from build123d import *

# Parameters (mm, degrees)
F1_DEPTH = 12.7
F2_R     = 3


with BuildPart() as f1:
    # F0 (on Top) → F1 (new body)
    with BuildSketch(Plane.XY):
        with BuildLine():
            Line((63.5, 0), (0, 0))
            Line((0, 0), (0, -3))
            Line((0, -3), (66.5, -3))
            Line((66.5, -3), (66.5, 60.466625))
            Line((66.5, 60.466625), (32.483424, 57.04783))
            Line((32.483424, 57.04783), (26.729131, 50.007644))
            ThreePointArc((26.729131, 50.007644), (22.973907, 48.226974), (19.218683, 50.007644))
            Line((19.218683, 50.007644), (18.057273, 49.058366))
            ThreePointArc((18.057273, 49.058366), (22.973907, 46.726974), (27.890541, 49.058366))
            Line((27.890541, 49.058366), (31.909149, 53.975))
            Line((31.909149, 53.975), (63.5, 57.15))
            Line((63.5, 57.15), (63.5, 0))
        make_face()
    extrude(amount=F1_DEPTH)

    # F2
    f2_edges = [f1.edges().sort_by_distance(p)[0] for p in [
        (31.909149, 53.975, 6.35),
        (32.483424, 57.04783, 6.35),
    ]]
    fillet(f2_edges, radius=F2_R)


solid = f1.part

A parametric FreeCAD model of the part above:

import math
import FreeCAD as App
import Part
import Sketcher
from FreeCAD import Vector
Q = App.Units.Quantity


def edges_at(feature, points):
    """Names of the edges that pass closest to the given points."""
    edges = feature.Shape.Edges
    near = lambda p: min(range(len(edges)), key=lambda i: edges[i].distToShape(Part.Vertex(*p))[0])
    return sorted({f"Edge{near(p) + 1}" for p in points})

doc = App.newDocument("Part")
params = doc.addObject("Spreadsheet::Sheet", "Params")
for row, (alias, value) in enumerate([
    ("sketch1_radius", "0.25 in"),
    ("sketch1_width", "2.5 in"),
    ("sketch1_height", "2.25 in"),
    ("sketch1_length", "0.25 in"),
    ("sketch1_length2", "1.25 in"),
    ("pad1_length", "0.5 in"),
    ("fillet_radius", "3 mm"),
], start=1):
    params.set(f"A{row}", alias)
    params.set(f"B{row}", "=" + value)
    params.setAlias(f"B{row}", alias)

body = doc.addObject("PartDesign::Body", "Body")

sketch1 = body.newObject("Sketcher::SketchObject", "Sketch")
sketch1.AttachmentSupport = (doc.getObject("XY_Plane"), [""])
sketch1.MapMode = "FlatFace"
sketch1.addGeometry([
    Part.LineSegment(Vector(63.5, 0, 0), Vector(0, 0, 0)),
    Part.LineSegment(Vector(0, 0, 0), Vector(0, -3, 0)),
    Part.LineSegment(Vector(0, -3, 0), Vector(66.5, -3, 0)),
    Part.LineSegment(Vector(66.5, -3, 0), Vector(66.5, 60.5, 0)),
    Part.LineSegment(Vector(66.5, 60.5, 0), Vector(32.5, 57, 0)),
    Part.LineSegment(Vector(32.5, 57, 0), Vector(26.7, 50, 0)),
    Part.ArcOfCircle(Part.Circle(Vector(23, 53.1, 0), Vector(0, 0, 1), 4.8), math.radians(-141), math.radians(-39)),
    Part.LineSegment(Vector(19.2, 50, 0), Vector(18.1, 49.1, 0)),
    Part.ArcOfCircle(Part.Circle(Vector(23, 53.1, 0), Vector(0, 0, 1), 6.4), math.radians(-141), math.radians(-39)),
    Part.LineSegment(Vector(27.9, 49.1, 0), Vector(31.9, 54, 0)),
    Part.LineSegment(Vector(31.9, 54, 0), Vector(63.5, 57.1, 0)),
    Part.LineSegment(Vector(63.5, 57.1, 0), Vector(63.5, 0, 0)),
], False)
sketch1.addConstraint([
    Sketcher.Constraint("Coincident", 0, 2, 1, 1),
    Sketcher.Constraint("Coincident", 1, 2, 2, 1),
    Sketcher.Constraint("Coincident", 2, 2, 3, 1),
    Sketcher.Constraint("Coincident", 3, 2, 4, 1),
    Sketcher.Constraint("Coincident", 4, 2, 5, 1),
    Sketcher.Constraint("Tangent", 5, 2, 6, 2),
    Sketcher.Constraint("Coincident", 6, 1, 7, 1),
    Sketcher.Constraint("Coincident", 7, 2, 8, 1),
    Sketcher.Constraint("Tangent", 8, 2, 9, 1),
    Sketcher.Constraint("Coincident", 9, 2, 10, 1),
    Sketcher.Constraint("Coincident", 10, 2, 11, 1),
    Sketcher.Constraint("Coincident", 11, 2, 0, 1),
    Sketcher.Constraint("Horizontal", 0),
    Sketcher.Constraint("Vertical", 1),
    Sketcher.Constraint("Horizontal", 2),
    Sketcher.Constraint("Vertical", 3),
    Sketcher.Constraint("Vertical", 11),
    Sketcher.Constraint("Coincident", 0, 2, -1, 1),
    Sketcher.Constraint("Coincident", 8, 3, 6, 3),
    Sketcher.Constraint("Parallel", 5, 9),
    Sketcher.Constraint("Parallel", 4, 10),
    Sketcher.Constraint("Horizontal", 5, 2, 6, 1),
    Sketcher.Constraint("Horizontal", 7, 2, 8, 2),
    Sketcher.Constraint("Radius", 8, Q("0.25 in")),
    Sketcher.Constraint("DistanceX", 0, 2, 0, 1, Q("2.5 in")),
    Sketcher.Constraint("DistanceY", 11, 2, 11, 1, Q("2.25 in")),
    Sketcher.Constraint("Distance", 9, Q("0.25 in")),
    Sketcher.Constraint("Distance", 10, Q("1.25 in")),
    Sketcher.Constraint("Radius", 6, Q("4.849998 mm")),
    Sketcher.Constraint("DistanceY", -1, 1, 9, 2, Q("2.125 in")),
    Sketcher.Constraint("DistanceX", 2, 1, 2, 2, Q("66.5 mm")),
    Sketcher.Constraint("DistanceY", 1, 2, 1, 1, Q("3 mm")),
    Sketcher.Constraint("Distance", 5, Q("9.09264 mm")),
    Sketcher.Constraint("DistanceY", 3, 1, 3, 2, Q("63.466625 mm")),
])
sketch1.setExpression("Constraints[23]", "Params.sketch1_radius")
sketch1.setExpression("Constraints[24]", "Params.sketch1_width")
sketch1.setExpression("Constraints[25]", "Params.sketch1_height")
sketch1.setExpression("Constraints[26]", "Params.sketch1_length")
sketch1.setExpression("Constraints[27]", "Params.sketch1_length2")
pad1 = body.newObject("PartDesign::Pad", "Pad")
pad1.Profile = sketch1
pad1.setExpression("Length", "Params.pad1_length")
doc.recompute()

fillet = body.newObject("PartDesign::Fillet", "Fillet")
fillet.Base = (pad1, edges_at(pad1, [(31.909, 53.975, 6.35), (32.483, 57.048, 6.35)]))
fillet.setExpression("Radius", "Params.fillet_radius")

doc.recompute()
